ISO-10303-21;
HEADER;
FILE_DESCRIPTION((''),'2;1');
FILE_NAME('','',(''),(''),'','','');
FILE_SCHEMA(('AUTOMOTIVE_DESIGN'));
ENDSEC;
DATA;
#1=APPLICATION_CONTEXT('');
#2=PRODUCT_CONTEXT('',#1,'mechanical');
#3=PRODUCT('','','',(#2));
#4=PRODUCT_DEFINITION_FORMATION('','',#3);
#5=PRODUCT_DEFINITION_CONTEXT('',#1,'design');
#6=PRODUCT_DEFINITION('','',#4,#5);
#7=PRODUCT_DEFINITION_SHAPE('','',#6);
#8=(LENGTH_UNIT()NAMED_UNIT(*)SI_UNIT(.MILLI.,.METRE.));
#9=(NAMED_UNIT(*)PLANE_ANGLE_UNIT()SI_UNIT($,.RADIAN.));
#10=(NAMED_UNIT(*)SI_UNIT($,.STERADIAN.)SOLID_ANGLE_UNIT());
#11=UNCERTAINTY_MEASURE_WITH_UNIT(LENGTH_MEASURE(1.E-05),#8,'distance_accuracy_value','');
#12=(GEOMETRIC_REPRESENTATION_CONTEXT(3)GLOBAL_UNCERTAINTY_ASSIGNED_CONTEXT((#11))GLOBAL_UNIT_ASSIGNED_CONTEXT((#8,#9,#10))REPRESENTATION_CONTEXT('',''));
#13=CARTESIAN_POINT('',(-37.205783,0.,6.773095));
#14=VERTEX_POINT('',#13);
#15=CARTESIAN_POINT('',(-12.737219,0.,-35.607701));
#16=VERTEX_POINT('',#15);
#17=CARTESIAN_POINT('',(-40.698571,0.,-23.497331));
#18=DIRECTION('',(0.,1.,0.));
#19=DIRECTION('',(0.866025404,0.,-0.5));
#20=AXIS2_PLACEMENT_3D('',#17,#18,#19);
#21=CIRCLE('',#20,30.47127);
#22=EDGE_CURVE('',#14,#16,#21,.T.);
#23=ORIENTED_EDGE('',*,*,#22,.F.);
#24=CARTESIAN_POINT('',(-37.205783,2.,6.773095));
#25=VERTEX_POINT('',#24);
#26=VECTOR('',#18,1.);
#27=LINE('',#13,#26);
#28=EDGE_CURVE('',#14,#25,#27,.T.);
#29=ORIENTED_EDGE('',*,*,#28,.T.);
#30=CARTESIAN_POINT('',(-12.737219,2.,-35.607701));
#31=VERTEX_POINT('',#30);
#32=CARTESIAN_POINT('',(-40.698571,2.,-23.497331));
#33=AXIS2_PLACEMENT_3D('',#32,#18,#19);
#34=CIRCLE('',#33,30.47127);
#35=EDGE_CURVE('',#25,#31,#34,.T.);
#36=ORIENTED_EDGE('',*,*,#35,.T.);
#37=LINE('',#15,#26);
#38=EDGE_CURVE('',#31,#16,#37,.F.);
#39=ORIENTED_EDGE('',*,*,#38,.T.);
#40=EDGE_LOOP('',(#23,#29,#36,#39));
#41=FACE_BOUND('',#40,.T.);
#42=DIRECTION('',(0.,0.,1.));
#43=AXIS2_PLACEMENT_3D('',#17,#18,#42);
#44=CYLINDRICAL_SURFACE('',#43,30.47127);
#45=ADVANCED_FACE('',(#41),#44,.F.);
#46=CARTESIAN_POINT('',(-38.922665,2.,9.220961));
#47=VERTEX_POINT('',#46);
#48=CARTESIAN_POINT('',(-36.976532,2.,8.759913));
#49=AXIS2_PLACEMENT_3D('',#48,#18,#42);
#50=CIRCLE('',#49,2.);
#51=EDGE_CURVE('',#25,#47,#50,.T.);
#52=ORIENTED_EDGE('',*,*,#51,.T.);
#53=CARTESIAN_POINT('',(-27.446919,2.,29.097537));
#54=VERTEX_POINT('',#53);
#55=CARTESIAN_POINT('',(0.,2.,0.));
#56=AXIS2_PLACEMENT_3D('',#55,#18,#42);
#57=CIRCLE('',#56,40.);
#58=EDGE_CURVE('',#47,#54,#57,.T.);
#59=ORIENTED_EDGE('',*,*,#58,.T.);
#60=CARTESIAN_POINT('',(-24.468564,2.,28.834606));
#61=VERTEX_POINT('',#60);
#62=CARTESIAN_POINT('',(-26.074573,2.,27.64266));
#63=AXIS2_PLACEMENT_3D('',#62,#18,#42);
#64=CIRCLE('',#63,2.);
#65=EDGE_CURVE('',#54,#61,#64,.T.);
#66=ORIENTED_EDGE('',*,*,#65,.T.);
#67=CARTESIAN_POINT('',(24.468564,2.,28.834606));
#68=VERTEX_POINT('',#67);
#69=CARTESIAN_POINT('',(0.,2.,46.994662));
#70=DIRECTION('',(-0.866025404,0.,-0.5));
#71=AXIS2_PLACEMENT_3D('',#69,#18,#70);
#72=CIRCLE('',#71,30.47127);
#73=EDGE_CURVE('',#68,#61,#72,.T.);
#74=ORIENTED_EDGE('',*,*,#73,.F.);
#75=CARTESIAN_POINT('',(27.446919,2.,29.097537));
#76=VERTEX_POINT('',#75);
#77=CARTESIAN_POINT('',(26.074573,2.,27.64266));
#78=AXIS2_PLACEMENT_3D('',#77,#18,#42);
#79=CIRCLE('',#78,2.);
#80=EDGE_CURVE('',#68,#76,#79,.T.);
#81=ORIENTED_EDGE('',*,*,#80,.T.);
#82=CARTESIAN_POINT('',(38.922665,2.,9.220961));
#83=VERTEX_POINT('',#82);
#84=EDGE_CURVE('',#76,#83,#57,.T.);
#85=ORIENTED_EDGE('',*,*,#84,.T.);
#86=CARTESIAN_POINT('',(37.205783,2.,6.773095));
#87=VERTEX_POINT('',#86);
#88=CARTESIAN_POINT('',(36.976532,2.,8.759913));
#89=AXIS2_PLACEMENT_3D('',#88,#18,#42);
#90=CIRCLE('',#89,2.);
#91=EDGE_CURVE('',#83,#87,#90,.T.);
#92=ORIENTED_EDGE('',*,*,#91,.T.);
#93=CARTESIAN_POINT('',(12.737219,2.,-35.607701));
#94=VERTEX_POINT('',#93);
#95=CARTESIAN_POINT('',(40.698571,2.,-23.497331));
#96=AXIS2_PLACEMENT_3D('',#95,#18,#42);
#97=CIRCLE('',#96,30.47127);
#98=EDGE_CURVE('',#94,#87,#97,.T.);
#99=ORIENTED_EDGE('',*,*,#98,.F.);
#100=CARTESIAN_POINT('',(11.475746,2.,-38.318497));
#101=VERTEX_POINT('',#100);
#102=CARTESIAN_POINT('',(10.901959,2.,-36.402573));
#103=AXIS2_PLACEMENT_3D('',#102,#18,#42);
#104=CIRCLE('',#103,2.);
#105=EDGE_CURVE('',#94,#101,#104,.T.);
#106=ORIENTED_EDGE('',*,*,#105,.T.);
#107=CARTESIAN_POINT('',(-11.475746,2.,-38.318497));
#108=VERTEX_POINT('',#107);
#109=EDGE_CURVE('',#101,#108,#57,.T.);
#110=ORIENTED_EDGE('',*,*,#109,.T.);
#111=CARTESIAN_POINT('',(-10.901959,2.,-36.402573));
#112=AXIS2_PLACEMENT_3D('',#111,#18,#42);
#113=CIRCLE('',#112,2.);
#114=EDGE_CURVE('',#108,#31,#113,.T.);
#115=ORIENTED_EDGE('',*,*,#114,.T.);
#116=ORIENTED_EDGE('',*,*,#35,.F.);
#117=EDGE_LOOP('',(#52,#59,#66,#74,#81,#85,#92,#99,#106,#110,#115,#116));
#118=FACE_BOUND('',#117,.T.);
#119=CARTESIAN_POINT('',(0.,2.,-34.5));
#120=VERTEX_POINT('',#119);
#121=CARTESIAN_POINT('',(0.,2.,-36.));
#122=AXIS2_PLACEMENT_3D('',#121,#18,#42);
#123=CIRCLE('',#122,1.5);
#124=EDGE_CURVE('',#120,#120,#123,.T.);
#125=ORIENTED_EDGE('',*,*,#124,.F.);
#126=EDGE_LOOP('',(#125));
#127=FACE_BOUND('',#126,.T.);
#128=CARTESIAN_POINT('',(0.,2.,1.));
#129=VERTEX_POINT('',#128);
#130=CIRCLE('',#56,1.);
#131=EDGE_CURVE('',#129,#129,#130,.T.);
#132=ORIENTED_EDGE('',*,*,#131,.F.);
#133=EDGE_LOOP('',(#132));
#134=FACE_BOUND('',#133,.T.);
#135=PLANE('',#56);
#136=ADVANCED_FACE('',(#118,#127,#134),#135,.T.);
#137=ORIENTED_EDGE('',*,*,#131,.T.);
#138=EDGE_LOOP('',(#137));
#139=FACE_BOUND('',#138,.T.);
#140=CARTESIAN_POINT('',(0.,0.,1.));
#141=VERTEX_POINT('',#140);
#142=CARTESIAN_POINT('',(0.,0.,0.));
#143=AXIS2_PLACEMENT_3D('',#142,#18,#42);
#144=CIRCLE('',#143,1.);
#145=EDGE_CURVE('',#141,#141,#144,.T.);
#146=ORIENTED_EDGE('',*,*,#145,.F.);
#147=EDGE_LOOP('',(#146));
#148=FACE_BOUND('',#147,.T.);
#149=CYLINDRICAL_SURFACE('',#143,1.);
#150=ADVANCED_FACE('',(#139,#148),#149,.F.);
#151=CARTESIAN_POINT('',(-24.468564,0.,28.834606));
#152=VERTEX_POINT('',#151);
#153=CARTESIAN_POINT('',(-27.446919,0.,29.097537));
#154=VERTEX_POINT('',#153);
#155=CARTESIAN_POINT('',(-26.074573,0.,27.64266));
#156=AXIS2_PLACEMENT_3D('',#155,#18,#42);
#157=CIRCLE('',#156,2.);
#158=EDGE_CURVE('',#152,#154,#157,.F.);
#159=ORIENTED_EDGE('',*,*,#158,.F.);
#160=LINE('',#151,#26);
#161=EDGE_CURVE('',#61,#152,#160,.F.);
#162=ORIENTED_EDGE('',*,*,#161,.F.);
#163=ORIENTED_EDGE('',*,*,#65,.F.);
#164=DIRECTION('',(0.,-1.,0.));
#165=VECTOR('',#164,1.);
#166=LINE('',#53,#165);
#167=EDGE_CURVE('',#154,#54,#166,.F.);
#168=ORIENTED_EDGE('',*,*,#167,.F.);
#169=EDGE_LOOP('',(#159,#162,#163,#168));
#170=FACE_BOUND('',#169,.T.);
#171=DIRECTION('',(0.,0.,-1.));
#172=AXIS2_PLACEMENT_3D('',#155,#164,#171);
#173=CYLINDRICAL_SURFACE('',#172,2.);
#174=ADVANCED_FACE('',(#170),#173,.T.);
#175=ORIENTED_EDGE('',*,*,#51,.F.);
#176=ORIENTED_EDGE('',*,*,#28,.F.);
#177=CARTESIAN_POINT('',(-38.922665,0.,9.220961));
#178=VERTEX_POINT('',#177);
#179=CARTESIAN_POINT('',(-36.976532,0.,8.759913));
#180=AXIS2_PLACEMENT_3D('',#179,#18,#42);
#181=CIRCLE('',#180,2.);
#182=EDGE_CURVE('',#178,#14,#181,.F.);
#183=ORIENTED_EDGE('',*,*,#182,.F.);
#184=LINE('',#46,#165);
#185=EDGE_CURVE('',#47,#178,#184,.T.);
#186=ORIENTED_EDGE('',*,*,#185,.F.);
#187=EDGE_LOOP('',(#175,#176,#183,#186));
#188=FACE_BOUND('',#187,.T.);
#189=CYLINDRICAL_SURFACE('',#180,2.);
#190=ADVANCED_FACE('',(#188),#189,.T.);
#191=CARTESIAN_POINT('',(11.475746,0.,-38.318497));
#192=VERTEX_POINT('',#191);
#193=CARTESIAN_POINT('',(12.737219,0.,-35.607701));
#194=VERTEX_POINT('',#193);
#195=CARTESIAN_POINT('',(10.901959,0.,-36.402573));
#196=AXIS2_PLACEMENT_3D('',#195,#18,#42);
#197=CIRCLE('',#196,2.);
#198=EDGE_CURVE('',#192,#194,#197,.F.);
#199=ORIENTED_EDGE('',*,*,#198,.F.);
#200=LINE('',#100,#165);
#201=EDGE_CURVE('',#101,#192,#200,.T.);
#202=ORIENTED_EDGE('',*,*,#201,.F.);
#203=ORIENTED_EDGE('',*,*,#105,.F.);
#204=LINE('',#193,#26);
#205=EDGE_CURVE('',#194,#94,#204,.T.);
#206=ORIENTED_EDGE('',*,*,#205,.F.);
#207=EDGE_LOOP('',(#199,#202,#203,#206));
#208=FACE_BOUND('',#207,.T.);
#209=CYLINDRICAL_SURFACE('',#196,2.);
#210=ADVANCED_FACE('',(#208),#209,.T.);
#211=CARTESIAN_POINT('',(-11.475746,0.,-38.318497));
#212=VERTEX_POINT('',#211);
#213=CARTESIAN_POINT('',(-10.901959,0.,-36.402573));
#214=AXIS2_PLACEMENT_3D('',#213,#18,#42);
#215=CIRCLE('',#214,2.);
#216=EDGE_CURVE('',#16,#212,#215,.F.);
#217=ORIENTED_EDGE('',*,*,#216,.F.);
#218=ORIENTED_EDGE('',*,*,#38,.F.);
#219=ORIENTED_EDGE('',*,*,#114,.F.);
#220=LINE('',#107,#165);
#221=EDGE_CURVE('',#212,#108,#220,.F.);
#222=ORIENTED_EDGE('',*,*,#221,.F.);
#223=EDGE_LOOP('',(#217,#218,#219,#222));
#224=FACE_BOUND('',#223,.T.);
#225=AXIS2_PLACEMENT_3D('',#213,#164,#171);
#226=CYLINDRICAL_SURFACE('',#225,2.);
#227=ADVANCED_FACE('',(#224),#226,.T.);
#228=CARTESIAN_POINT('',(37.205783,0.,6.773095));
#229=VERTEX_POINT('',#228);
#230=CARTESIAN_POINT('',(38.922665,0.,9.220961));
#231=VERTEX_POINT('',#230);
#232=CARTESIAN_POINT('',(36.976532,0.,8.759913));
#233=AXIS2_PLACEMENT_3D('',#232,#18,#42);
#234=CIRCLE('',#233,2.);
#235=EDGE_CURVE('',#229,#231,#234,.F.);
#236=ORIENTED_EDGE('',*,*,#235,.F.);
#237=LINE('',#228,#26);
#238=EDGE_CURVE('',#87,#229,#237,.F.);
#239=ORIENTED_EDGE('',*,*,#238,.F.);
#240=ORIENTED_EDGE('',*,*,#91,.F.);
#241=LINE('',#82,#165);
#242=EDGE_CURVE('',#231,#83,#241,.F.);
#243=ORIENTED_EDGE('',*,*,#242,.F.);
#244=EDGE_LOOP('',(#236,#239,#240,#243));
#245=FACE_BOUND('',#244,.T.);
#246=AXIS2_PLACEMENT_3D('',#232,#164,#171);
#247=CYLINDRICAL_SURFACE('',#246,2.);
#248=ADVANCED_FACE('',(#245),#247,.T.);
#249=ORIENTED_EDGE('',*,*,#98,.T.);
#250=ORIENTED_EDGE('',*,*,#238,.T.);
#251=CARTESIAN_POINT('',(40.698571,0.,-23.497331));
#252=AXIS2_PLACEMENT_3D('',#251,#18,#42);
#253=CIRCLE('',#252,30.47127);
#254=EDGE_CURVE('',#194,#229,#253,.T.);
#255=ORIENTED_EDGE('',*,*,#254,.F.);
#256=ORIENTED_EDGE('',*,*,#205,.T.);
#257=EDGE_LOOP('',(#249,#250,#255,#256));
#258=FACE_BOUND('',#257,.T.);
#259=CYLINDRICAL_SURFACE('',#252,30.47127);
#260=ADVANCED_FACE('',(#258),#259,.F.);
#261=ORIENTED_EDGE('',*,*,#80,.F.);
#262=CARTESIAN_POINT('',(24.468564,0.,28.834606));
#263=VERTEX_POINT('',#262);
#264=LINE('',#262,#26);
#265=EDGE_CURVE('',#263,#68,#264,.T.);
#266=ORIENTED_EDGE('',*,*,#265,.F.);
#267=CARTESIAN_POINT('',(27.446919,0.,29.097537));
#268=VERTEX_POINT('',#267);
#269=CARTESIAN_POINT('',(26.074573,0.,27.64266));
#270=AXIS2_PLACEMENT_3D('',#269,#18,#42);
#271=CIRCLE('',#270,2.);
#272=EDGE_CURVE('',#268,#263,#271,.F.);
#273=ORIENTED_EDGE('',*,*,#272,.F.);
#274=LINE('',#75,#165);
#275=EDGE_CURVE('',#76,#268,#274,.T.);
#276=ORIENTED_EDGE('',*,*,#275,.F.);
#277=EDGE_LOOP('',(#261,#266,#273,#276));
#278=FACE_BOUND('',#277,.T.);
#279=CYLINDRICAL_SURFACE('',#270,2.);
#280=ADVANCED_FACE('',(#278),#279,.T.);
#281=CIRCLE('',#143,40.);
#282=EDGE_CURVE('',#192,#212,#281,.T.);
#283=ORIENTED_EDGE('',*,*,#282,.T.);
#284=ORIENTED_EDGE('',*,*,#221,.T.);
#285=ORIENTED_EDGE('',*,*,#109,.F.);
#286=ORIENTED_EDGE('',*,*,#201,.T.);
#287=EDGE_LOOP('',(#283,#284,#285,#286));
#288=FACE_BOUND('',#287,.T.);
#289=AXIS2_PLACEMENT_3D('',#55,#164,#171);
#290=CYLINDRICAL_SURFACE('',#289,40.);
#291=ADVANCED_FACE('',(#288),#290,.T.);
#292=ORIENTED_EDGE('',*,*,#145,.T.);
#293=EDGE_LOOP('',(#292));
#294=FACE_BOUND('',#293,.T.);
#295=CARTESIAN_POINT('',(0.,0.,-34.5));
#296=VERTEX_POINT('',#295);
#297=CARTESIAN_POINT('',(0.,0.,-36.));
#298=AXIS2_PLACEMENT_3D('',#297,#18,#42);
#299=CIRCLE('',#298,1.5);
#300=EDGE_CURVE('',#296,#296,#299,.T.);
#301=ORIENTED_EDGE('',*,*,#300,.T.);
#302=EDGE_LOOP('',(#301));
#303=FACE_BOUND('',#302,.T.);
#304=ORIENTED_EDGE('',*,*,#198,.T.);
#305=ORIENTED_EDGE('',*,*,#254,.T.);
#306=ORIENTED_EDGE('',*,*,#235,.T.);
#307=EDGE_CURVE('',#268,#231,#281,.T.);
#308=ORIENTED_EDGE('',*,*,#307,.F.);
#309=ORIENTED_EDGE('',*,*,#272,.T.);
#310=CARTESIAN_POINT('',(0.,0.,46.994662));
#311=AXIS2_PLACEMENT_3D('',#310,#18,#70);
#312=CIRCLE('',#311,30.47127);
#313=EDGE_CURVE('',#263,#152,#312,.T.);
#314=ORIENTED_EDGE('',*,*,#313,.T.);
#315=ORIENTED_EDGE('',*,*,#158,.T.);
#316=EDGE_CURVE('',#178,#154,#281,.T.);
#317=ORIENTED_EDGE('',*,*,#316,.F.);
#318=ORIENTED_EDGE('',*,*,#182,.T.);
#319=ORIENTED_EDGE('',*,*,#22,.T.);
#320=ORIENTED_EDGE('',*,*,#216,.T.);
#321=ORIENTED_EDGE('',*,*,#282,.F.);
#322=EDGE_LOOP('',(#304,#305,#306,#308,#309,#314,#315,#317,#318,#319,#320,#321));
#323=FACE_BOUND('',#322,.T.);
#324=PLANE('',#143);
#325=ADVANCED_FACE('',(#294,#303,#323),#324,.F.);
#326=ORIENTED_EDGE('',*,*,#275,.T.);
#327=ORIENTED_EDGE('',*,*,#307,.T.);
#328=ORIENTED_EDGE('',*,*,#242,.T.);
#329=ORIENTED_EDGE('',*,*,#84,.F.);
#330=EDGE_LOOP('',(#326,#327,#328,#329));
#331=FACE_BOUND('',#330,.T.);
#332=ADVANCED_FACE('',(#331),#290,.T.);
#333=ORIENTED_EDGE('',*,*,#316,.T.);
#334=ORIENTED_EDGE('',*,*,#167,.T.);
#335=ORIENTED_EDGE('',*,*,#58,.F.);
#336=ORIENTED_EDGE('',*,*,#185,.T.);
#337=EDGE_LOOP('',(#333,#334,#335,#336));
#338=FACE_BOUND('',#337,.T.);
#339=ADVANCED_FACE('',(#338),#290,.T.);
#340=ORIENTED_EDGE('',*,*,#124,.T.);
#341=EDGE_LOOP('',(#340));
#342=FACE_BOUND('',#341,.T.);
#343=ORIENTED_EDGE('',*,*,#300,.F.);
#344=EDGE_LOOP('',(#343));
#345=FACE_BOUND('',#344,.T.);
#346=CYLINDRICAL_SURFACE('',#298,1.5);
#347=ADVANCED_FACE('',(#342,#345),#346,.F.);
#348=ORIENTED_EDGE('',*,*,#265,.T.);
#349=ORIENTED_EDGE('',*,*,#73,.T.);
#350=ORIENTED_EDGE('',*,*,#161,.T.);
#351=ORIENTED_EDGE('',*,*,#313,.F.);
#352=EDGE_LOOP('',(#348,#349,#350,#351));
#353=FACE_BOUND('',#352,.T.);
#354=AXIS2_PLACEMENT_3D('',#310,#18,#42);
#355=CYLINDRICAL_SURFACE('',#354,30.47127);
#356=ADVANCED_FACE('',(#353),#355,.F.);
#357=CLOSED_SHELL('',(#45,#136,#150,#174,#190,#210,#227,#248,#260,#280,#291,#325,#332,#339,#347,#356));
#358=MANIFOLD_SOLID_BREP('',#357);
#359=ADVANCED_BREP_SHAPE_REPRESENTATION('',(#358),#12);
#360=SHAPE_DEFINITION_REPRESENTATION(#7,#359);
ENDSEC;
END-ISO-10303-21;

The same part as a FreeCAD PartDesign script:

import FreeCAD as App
import Part
import Sketcher

V = App.Vector
Q = App.Units.Quantity


def edges_at(feature, points):
    """Names of the edges that pass closest to the given points."""
    edges = feature.Shape.Edges
    near = lambda p: min(range(len(edges)), key=lambda i: edges[i].distToShape(Part.Vertex(*p))[0])
    return sorted({f"Edge{near(p) + 1}" for p in points})

doc = App.newDocument("Part")
body = doc.addObject("PartDesign::Body", "Body")

# Sketch on XZ plane
sketch1 = body.newObject("Sketcher::SketchObject", "Sketch")
sketch1.AttachmentSupport = (doc.getObject("XZ_Plane"), [""])
sketch1.MapMode = "FlatFace"
sketch1.addGeometry(Part.Circle(V(0, 0, 0), V(0, 0, 1), 40), False)
sketch1.addConstraint(Sketcher.Constraint("Coincident", 0, 3, -1, 1))
sketch1.addConstraint(Sketcher.Constraint("Diameter", 0, Q("80 mm")))
pad1 = body.newObject("PartDesign::Pad", "Pad")
pad1.Profile = sketch1
pad1.Length = 2
pad1.Reversed = True

# Sketch on XZ plane
sketch2 = body.newObject("Sketcher::SketchObject", "Sketch001")
sketch2.AttachmentSupport = (doc.getObject("XZ_Plane"), [""])
sketch2.MapMode = "FlatFace"
sketch2.AttachmentOffset = App.Placement(V(0, 0, -2), App.Rotation())
sketch2.addGeometry(Part.Circle(V(0, -36, 0), V(0, 0, 1), 1.5), False)
sketch2.addConstraint(Sketcher.Constraint("PointOnObject", 0, 3, -2))
sketch2.addConstraint(Sketcher.Constraint("Diameter", 0, Q("3 mm")))
sketch2.addConstraint(Sketcher.Constraint("DistanceY", 0, 3, -1, 1, Q("36 mm")))
pocket1 = body.newObject("PartDesign::Pocket", "Pocket")
pocket1.Profile = sketch2
pocket1.Type = "ThroughAll"
pocket1.Reversed = True

# Sketch on XZ plane
sketch3 = body.newObject("Sketcher::SketchObject", "Sketch002")
sketch3.AttachmentSupport = (doc.getObject("XZ_Plane"), [""])
sketch3.MapMode = "FlatFace"
sketch3.AttachmentOffset = App.Placement(V(0, 0, -2), App.Rotation())
sketch3.addGeometry(Part.Circle(V(0, 0, 0), V(0, 0, 1), 1), False)
sketch3.addConstraint(Sketcher.Constraint("Coincident", 0, 3, -1, 1))
sketch3.addConstraint(Sketcher.Constraint("Diameter", 0, Q("2 mm")))
pocket2 = body.newObject("PartDesign::Pocket", "Pocket001")
pocket2.Profile = sketch3
pocket2.Type = "ThroughAll"
pocket2.Reversed = True

# Sketch on XZ plane
sketch4 = body.newObject("Sketcher::SketchObject", "Sketch003")
sketch4.AttachmentSupport = (doc.getObject("XZ_Plane"), [""])
sketch4.MapMode = "FlatFace"
sketch4.AttachmentOffset = App.Placement(V(0, 0, -2), App.Rotation())
sketch4.addGeometry(Part.Circle(V(41, -23, 0), V(0, 0, 1), 30), False)
sketch4.addConstraint(Sketcher.Constraint("Diameter", 0, Q("60.94254 mm")))
sketch4.addConstraint(Sketcher.Constraint("DistanceX", -1, 1, 0, 3, Q("40.698571 mm")))
sketch4.addConstraint(Sketcher.Constraint("DistanceY", 0, 3, -1, 1, Q("23.497331 mm")))
pocket3 = body.newObject("PartDesign::Pocket", "Pocket002")
pocket3.Profile = sketch4
pocket3.Type = "ThroughAll"
pocket3.Reversed = True
doc.recompute()

polarpattern = body.newObject("PartDesign::PolarPattern", "PolarPattern")
polarpattern.Originals = [pocket3]
polarpattern.Axis = (doc.getObject("Y_Axis"), [""])
polarpattern.Angle = 360
polarpattern.Occurrences = 3
body.Tip = polarpattern
doc.recompute()

fillet = body.newObject("PartDesign::Fillet", "Fillet")
fillet.Base = (polarpattern, edges_at(polarpattern, [
    (39.392, 1, 6.946),
    (13.681, 1, -37.588),
    (-25.712, 1, 30.642),
    (25.712, 1, 30.642),
    (-13.681, 1, -37.588),
    (-39.392, 1, 6.946),
]))
fillet.Radius = 2

doc.recompute()
